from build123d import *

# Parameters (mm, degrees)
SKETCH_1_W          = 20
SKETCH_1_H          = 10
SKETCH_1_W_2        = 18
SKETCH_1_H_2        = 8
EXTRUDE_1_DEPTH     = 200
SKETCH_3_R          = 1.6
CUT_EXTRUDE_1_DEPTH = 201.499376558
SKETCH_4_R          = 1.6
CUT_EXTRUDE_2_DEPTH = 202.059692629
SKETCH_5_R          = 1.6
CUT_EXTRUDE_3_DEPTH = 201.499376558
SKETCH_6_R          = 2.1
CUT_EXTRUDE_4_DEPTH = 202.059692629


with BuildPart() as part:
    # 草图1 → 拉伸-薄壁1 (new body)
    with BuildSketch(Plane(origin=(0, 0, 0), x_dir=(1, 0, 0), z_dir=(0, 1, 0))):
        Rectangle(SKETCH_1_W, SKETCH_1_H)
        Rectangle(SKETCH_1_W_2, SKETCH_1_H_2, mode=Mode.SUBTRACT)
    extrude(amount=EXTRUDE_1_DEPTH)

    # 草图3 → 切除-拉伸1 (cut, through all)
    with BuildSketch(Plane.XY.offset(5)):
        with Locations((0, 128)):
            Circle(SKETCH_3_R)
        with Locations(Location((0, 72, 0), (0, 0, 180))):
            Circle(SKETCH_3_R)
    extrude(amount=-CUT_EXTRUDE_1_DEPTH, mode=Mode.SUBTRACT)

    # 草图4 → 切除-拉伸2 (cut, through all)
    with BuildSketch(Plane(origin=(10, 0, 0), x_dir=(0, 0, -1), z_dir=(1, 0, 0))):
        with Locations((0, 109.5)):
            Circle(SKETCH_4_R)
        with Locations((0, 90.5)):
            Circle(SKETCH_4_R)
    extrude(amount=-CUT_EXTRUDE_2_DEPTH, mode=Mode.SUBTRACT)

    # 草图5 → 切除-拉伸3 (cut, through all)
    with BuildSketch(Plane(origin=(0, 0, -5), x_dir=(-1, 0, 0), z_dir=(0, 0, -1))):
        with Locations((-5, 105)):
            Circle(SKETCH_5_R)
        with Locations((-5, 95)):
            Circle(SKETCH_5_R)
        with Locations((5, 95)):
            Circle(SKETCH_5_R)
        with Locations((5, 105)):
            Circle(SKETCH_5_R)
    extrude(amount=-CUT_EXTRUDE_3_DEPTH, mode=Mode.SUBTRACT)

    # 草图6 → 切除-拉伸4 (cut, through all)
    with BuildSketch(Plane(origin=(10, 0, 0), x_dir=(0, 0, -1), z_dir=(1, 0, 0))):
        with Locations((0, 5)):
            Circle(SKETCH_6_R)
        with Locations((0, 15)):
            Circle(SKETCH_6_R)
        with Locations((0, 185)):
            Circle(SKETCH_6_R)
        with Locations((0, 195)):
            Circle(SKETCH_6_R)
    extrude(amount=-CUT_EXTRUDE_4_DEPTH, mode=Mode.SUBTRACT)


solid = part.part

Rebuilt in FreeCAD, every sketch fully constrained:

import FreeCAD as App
import Part
import Sketcher

doc = App.newDocument("Part")
body = doc.addObject("PartDesign::Body", "Body")

# Sketch on XZ plane
sketch1 = body.newObject("Sketcher::SketchObject", "Sketch")
sketch1.AttachmentSupport = (doc.getObject("XZ_Plane"), [""])
sketch1.MapMode = "FlatFace"
sketch1.addGeometry([
    Part.LineSegment(App.Vector(-10, -5, 0), App.Vector(-10, 5, 0)),  # 0
    Part.LineSegment(App.Vector(-10, 5, 0), App.Vector(10, 5, 0)),  # 1
    Part.LineSegment(App.Vector(10, 5, 0), App.Vector(10, -5, 0)),  # 2
    Part.LineSegment(App.Vector(10, -5, 0), App.Vector(-10, -5, 0)),  # 3
    Part.LineSegment(App.Vector(9, 4, 0), App.Vector(-9, 4, 0)),  # 4
    Part.LineSegment(App.Vector(-9, 4, 0), App.Vector(-9, -4, 0)),  # 5
    Part.LineSegment(App.Vector(-9, -4, 0), App.Vector(9, -4, 0)),  # 6
    Part.LineSegment(App.Vector(9, -4, 0), App.Vector(9, 4, 0)),  # 7
], False)
sketch1.addConstraint([
    Sketcher.Constraint("Coincident", 0, 2, 1, 1),
    Sketcher.Constraint("Coincident", 1, 2, 2, 1),
    Sketcher.Constraint("Coincident", 2, 2, 3, 1),
    Sketcher.Constraint("Coincident", 3, 2, 0, 1),
    Sketcher.Constraint("Coincident", 4, 2, 5, 1),
    Sketcher.Constraint("Coincident", 5, 2, 6, 1),
    Sketcher.Constraint("Coincident", 6, 2, 7, 1),
    Sketcher.Constraint("Coincident", 7, 2, 4, 1),
    Sketcher.Constraint("Vertical", 0),
    Sketcher.Constraint("Horizontal", 1),
    Sketcher.Constraint("Vertical", 2),
    Sketcher.Constraint("Horizontal", 3),
    Sketcher.Constraint("Horizontal", 4),
    Sketcher.Constraint("Vertical", 5),
    Sketcher.Constraint("Horizontal", 6),
    Sketcher.Constraint("Vertical", 7),
    Sketcher.Constraint("Symmetric", 0, 2, 2, 2, -1, 1),
    Sketcher.Constraint("Symmetric", 4, 2, 6, 2, -1, 1),
    Sketcher.Constraint("DistanceX", 1, 1, 1, 2, 20.0),
    Sketcher.Constraint("DistanceX", 4, 2, 4, 1, 18.0),
    Sketcher.Constraint("DistanceY", 0, 1, 0, 2, 10.0),
    Sketcher.Constraint("DistanceY", 5, 2, 5, 1, 8.0),
])
pad1 = body.newObject("PartDesign::Pad", "Pad")
pad1.Profile = sketch1
pad1.Length = 200
pad1.Reversed = True

# Sketch on XY plane
sketch2 = body.newObject("Sketcher::SketchObject", "Sketch001")
sketch2.AttachmentSupport = (doc.getObject("XY_Plane"), [""])
sketch2.MapMode = "FlatFace"
sketch2.AttachmentOffset = App.Placement(App.Vector(0, 0, 5), App.Rotation())
sketch2.addGeometry([
    Part.Circle(App.Vector(0, 128, 0), App.Vector(0, 0, 1), 1.6),
    Part.Circle(App.Vector(0, 72, 0), App.Vector(0, 0, 1), 1.6),
], False)
sketch2.addConstraint([
    Sketcher.Constraint("Equal", 0, 1),
    Sketcher.Constraint("PointOnObject", 0, 3, -2),
    Sketcher.Constraint("PointOnObject", 1, 3, -2),
    Sketcher.Constraint("Diameter", 0, 3.2),
    Sketcher.Constraint("DistanceY", -1, 1, 0, 3, 128.0),
    Sketcher.Constraint("DistanceY", -1, 1, 1, 3, 72.0),
])
pocket1 = body.newObject("PartDesign::Pocket", "Pocket")
pocket1.Profile = sketch2
pocket1.Type = "ThroughAll"

# Sketch on YZ plane
sketch3 = body.newObject("Sketcher::SketchObject", "Sketch002")
sketch3.AttachmentSupport = (doc.getObject("YZ_Plane"), [""])
sketch3.MapMode = "FlatFace"
sketch3.AttachmentOffset = App.Placement(App.Vector(0, 0, 10), App.Rotation())
sketch3.addGeometry([
    Part.Circle(App.Vector(109.5, 0, 0), App.Vector(0, 0, 1), 1.6),
    Part.Circle(App.Vector(90.5, 0, 0), App.Vector(0, 0, 1), 1.6),
], False)
sketch3.addConstraint([
    Sketcher.Constraint("Equal", 0, 1),
    Sketcher.Constraint("PointOnObject", 0, 3, -1),
    Sketcher.Constraint("PointOnObject", 1, 3, -1),
    Sketcher.Constraint("Diameter", 0, 3.2),
    Sketcher.Constraint("DistanceX", 1, 3, 0, 3, 19.0),
    Sketcher.Constraint("DistanceX", -1, 1, 0, 3, 109.5),
])
pocket2 = body.newObject("PartDesign::Pocket", "Pocket001")
pocket2.Profile = sketch3
pocket2.Type = "ThroughAll"

# Sketch on XY plane
sketch4 = body.newObject("Sketcher::SketchObject", "Sketch003")
sketch4.AttachmentSupport = (doc.getObject("XY_Plane"), [""])
sketch4.MapMode = "FlatFace"
sketch4.AttachmentOffset = App.Placement(App.Vector(0, 0, -5), App.Rotation())
sketch4.addGeometry([
    Part.Circle(App.Vector(5, 105, 0), App.Vector(0, 0, 1), 1.6),
    Part.Circle(App.Vector(5, 95, 0), App.Vector(0, 0, 1), 1.6),
    Part.Circle(App.Vector(-5, 95, 0), App.Vector(0, 0, 1), 1.6),
    Part.Circle(App.Vector(-5, 105, 0), App.Vector(0, 0, 1), 1.6),
], False)
sketch4.addConstraint([
    Sketcher.Constraint("Equal", 0, 1),
    Sketcher.Constraint("Equal", 1, 2),
    Sketcher.Constraint("Equal", 2, 3),
    Sketcher.Constraint("Symmetric", 1, 3, 2, 3, -2),
    Sketcher.Constraint("Symmetric", 0, 3, 3, 3, -2),
    Sketcher.Constraint("Vertical", 0, 3, 1, 3),
    Sketcher.Constraint("Diameter", 0, 3.2),
    Sketcher.Constraint("DistanceX", -1, 1, 0, 3, 5.0),
    Sketcher.Constraint("DistanceY", -1, 1, 0, 3, 105.0),
    Sketcher.Constraint("DistanceY", -1, 1, 1, 3, 95.0),
])
pocket3 = body.newObject("PartDesign::Pocket", "Pocket002")
pocket3.Profile = sketch4
pocket3.Type = "ThroughAll"
pocket3.Reversed = True

# Sketch on YZ plane
sketch5 = body.newObject("Sketcher::SketchObject", "Sketch004")
sketch5.AttachmentSupport = (doc.getObject("YZ_Plane"), [""])
sketch5.MapMode = "FlatFace"
sketch5.AttachmentOffset = App.Placement(App.Vector(0, 0, 10), App.Rotation())
sketch5.addGeometry([
    Part.Circle(App.Vector(5, 0, 0), App.Vector(0, 0, 1), 2.1),
    Part.Circle(App.Vector(15, 0, 0), App.Vector(0, 0, 1), 2.1),
    Part.Circle(App.Vector(185, 0, 0), App.Vector(0, 0, 1), 2.1),
    Part.Circle(App.Vector(195, 0, 0), App.Vector(0, 0, 1), 2.1),
], False)
sketch5.addConstraint([
    Sketcher.Constraint("Equal", 0, 1),
    Sketcher.Constraint("Equal", 1, 2),
    Sketcher.Constraint("Equal", 2, 3),
    Sketcher.Constraint("PointOnObject", 0, 3, -1),
    Sketcher.Constraint("PointOnObject", 1, 3, -1),
    Sketcher.Constraint("PointOnObject", 2, 3, -1),
    Sketcher.Constraint("PointOnObject", 3, 3, -1),
    Sketcher.Constraint("Diameter", 0, 4.2),
    Sketcher.Constraint("DistanceX", -1, 1, 0, 3, 5.0),
    Sketcher.Constraint("DistanceX", -1, 1, 1, 3, 15.0),
    Sketcher.Constraint("DistanceX", -1, 1, 2, 3, 185.0),
    Sketcher.Constraint("DistanceX", -1, 1, 3, 3, 195.0),
])
pocket4 = body.newObject("PartDesign::Pocket", "Pocket003")
pocket4.Profile = sketch5
pocket4.Type = "ThroughAll"

doc.recompute()
